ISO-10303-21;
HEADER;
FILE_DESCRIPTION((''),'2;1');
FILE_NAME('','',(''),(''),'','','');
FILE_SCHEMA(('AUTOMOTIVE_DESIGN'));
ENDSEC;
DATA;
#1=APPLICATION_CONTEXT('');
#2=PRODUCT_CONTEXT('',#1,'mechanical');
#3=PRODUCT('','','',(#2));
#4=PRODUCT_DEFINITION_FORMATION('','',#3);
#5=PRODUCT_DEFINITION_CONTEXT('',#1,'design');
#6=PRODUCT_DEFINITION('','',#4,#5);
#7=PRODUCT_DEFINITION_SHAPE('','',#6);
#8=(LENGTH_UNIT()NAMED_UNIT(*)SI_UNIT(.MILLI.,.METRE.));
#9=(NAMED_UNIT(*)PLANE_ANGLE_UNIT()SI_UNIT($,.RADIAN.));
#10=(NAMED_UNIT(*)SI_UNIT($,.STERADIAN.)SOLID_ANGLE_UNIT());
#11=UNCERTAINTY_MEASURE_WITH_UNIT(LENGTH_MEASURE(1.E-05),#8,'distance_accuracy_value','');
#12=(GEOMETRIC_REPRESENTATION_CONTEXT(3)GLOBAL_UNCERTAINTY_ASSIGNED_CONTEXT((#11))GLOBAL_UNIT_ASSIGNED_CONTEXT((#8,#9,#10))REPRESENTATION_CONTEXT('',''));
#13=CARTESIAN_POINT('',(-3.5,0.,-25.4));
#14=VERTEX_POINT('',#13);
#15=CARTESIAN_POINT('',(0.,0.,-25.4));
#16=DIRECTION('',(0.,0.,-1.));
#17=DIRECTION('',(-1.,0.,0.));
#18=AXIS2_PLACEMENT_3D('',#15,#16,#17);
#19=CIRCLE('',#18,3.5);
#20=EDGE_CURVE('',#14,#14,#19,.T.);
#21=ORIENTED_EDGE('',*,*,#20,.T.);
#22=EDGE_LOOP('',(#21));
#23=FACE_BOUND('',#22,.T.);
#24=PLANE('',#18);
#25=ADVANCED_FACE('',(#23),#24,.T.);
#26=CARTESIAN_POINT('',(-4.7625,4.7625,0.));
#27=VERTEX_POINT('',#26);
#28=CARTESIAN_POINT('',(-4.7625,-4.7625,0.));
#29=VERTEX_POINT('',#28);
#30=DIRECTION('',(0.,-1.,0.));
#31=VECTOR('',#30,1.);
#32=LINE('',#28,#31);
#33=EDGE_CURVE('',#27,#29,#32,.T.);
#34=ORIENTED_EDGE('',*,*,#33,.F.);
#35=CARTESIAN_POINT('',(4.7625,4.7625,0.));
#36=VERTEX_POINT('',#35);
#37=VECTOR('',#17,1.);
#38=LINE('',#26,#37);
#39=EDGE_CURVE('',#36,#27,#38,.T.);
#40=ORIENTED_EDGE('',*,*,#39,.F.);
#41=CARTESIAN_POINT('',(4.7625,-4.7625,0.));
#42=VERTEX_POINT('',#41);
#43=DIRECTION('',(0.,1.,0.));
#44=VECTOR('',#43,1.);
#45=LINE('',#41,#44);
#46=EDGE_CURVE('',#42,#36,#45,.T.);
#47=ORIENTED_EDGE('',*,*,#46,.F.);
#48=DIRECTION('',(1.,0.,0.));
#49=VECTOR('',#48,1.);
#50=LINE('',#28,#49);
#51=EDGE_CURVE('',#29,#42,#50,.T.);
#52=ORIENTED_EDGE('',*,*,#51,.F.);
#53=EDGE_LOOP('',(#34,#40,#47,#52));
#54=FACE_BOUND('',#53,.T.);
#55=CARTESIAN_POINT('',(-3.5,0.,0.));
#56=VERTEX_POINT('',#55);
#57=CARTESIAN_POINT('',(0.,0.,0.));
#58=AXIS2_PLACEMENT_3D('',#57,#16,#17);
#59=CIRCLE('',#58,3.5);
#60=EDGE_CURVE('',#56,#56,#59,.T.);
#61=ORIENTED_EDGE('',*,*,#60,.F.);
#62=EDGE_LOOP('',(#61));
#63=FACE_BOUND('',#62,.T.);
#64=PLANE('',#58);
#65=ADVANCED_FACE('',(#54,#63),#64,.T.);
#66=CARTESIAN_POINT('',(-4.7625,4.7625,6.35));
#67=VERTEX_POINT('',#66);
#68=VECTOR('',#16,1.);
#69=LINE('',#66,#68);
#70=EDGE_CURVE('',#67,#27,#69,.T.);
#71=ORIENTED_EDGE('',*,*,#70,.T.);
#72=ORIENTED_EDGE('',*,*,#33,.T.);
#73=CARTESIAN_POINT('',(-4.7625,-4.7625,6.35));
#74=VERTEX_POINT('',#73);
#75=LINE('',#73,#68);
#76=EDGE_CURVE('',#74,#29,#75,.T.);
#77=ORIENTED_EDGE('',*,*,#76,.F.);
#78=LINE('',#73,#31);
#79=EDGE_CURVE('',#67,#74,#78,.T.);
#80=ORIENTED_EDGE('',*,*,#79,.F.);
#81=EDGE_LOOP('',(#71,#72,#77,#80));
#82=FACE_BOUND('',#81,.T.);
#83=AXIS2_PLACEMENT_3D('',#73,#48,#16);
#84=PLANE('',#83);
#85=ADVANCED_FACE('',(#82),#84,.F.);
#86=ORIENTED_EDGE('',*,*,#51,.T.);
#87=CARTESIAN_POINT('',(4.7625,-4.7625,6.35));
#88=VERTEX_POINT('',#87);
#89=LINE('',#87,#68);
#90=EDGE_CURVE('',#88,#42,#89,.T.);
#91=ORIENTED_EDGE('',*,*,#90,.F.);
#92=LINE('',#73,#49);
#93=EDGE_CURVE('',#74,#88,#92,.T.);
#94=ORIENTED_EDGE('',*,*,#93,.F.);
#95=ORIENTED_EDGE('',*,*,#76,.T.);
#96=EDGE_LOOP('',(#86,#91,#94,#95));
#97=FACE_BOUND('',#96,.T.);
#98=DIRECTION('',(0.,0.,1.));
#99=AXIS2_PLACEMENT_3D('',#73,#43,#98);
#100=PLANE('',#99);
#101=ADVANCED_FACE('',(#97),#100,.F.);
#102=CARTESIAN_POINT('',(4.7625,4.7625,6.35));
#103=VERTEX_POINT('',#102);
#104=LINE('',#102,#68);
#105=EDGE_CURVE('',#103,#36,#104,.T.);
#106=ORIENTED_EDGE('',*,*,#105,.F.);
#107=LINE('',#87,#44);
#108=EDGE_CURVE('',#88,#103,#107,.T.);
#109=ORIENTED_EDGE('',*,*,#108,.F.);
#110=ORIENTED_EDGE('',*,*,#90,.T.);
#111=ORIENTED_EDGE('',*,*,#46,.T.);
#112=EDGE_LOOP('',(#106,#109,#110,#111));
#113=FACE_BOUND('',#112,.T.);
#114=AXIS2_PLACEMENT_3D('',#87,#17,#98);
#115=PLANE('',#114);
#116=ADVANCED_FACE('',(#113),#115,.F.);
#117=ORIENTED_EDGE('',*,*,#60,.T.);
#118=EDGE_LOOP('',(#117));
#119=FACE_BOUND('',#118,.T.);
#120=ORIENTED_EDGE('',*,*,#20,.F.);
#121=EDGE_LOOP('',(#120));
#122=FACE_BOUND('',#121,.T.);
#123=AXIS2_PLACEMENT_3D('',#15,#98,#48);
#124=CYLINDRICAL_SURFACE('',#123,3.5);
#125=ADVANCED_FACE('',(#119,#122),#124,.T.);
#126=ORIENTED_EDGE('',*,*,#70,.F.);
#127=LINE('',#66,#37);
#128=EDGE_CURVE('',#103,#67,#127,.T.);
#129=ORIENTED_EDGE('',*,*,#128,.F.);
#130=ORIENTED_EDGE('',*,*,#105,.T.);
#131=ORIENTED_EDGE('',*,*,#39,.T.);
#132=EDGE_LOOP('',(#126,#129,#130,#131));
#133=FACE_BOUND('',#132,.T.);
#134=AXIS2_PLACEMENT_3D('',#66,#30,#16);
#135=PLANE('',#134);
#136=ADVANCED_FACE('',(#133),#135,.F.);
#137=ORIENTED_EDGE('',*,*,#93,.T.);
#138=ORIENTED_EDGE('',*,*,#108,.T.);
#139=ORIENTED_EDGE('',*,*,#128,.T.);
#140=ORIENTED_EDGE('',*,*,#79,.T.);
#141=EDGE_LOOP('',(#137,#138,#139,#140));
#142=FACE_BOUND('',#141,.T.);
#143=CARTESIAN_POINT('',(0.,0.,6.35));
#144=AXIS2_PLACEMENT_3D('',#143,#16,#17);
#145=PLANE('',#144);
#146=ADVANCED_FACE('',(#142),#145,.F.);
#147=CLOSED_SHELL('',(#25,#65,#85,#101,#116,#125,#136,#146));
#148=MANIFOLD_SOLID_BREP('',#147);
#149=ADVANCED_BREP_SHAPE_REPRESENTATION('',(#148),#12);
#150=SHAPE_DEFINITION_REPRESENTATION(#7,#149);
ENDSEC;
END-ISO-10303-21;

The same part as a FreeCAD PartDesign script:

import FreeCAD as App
import Part
import Sketcher

V = App.Vector
Q = App.Units.Quantity


def add_polygon(sketch, points):
    """Adds a closed chain of lines whose ends are joined by coincident constraints."""
    first, n = sketch.GeometryCount, len(points)
    for a, b in zip(points, points[1:] + points[:1]):
        sketch.addGeometry(Part.LineSegment(App.Vector(*a, 0), App.Vector(*b, 0)), False)
    for i in range(n):
        sketch.addConstraint(Sketcher.Constraint("Coincident", first + i, 2, first + (i + 1) % n, 1))

doc = App.newDocument("Part")
body = doc.addObject("PartDesign::Body", "Body")

# Sketch on XY plane
sketch1 = body.newObject("Sketcher::SketchObject", "Sketch")
sketch1.AttachmentSupport = (doc.getObject("XY_Plane"), [""])
sketch1.MapMode = "FlatFace"
add_polygon(sketch1, [(-5, 5), (-5, -5), (5, -5), (5, 5)])  # lines 0-3
sketch1.addConstraint([
    Sketcher.Constraint("Vertical", 0),
    Sketcher.Constraint("Horizontal", 1),
    Sketcher.Constraint("Vertical", 2),
    Sketcher.Constraint("Horizontal", 3),
    Sketcher.Constraint("Symmetric", 0, 2, 2, 2, -1, 1),
    Sketcher.Constraint("Equal", 3, 0),
    Sketcher.Constraint("DistanceX", 1, 1, 1, 2, Q("0.375 in")),
])
pad1 = body.newObject("PartDesign::Pad", "Pad")
pad1.Profile = sketch1
pad1.Length = Q("0.25 in")

# Sketch on XY plane
sketch2 = body.newObject("Sketcher::SketchObject", "Sketch001")
sketch2.AttachmentSupport = (doc.getObject("XY_Plane"), [""])
sketch2.MapMode = "FlatFace"
sketch2.addGeometry(Part.Circle(V(0, 0, 0), V(0, 0, 1), 3.5), False)
sketch2.addConstraint([
    Sketcher.Constraint("Coincident", 0, 3, -1, 1),
    Sketcher.Constraint("Diameter", 0, Q("7 mm")),
])
pad2 = body.newObject("PartDesign::Pad", "Pad001")
pad2.Profile = sketch2
pad2.Length = Q("1 in")
pad2.Reversed = True

doc.recompute()
